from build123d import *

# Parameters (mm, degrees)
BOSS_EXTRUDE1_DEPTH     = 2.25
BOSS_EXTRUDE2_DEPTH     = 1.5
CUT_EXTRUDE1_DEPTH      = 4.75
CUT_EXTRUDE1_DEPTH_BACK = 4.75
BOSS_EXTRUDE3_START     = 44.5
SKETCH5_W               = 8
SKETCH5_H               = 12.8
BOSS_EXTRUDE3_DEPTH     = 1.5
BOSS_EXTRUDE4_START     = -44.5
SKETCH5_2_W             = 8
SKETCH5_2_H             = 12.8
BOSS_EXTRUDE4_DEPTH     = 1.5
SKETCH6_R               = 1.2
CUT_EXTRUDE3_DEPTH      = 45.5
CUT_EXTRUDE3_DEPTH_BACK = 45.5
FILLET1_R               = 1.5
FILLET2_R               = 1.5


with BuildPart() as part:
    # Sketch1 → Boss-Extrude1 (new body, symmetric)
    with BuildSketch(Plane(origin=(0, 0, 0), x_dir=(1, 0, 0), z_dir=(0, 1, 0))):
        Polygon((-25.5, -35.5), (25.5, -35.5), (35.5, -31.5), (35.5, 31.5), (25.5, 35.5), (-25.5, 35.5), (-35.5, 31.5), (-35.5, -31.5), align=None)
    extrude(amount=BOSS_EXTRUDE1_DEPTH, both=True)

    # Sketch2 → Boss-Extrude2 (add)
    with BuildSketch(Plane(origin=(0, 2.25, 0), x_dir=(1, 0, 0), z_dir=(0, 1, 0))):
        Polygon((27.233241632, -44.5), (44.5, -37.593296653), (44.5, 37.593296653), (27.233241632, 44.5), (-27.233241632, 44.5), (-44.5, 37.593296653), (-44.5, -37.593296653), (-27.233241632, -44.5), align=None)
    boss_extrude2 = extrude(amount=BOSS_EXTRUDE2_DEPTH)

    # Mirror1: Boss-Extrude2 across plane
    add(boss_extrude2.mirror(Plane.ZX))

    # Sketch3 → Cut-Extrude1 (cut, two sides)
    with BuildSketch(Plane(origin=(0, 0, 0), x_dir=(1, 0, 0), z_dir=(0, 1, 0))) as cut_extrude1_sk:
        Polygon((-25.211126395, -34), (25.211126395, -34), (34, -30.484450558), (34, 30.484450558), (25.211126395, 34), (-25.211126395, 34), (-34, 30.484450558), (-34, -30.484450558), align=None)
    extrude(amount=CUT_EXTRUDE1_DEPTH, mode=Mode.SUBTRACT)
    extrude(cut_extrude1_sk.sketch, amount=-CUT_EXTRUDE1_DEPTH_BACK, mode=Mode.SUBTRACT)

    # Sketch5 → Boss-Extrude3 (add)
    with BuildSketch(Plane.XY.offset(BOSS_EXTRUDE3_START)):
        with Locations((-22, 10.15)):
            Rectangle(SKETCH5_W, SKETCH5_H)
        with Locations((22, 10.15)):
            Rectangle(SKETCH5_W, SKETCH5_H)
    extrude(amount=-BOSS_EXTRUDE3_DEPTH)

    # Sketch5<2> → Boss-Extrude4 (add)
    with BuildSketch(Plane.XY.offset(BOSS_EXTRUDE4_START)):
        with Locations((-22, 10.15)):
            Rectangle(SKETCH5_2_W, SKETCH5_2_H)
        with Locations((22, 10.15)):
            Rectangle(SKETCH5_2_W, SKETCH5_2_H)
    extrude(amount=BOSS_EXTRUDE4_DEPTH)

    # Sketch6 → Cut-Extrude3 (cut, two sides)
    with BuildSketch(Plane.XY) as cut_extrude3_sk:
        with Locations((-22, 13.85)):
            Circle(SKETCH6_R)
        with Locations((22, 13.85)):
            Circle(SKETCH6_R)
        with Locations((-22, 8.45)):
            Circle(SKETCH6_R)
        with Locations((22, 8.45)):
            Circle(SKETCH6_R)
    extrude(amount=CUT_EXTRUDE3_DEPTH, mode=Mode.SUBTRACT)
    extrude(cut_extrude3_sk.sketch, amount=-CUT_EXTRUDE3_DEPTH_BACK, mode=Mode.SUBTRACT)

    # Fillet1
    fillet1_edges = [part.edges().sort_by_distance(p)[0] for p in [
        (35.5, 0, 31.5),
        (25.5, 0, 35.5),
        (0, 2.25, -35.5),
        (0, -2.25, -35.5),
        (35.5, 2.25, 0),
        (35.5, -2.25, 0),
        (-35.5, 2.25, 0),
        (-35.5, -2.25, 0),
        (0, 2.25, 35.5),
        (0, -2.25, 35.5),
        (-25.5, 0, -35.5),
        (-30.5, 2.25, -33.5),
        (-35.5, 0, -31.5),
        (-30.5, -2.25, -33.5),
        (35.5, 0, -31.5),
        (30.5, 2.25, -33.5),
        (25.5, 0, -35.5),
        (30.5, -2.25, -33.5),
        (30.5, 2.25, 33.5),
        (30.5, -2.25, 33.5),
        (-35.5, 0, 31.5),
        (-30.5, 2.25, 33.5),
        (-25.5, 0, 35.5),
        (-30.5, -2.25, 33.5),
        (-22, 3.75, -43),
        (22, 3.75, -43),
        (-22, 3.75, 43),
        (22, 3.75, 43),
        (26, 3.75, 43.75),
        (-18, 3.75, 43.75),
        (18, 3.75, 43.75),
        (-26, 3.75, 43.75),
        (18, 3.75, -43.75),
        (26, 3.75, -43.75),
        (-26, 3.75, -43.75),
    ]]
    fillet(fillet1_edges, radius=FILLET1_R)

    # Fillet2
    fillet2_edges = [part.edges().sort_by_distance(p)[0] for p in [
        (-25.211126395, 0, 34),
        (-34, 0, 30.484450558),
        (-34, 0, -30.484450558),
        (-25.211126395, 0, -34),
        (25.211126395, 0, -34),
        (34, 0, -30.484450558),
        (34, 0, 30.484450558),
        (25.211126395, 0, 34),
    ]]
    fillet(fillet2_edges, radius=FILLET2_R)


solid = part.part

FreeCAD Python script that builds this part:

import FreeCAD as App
import Part
import Sketcher
from FreeCAD import Vector


def edges_at(feature, points):
    """Names of the edges that pass closest to the given points."""
    edges = feature.Shape.Edges
    near = lambda p: min(range(len(edges)), key=lambda i: edges[i].distToShape(Part.Vertex(*p))[0])
    return sorted({f"Edge{near(p) + 1}" for p in points})

doc = App.newDocument("Part")
body = doc.addObject("PartDesign::Body", "Body")

sketch1 = body.newObject("Sketcher::SketchObject", "Sketch")
sketch1.AttachmentSupport = (doc.getObject("XZ_Plane"), [""])
sketch1.MapMode = "FlatFace"
sketch1.addGeometry(Part.LineSegment(Vector(-26, 36, 0), Vector(26, 36, 0)), False)
sketch1.addGeometry(Part.LineSegment(Vector(26, 36, 0), Vector(36, 32, 0)), False)
sketch1.addGeometry(Part.LineSegment(Vector(36, 32, 0), Vector(36, -32, 0)), False)
sketch1.addGeometry(Part.LineSegment(Vector(36, -32, 0), Vector(26, -36, 0)), False)
sketch1.addGeometry(Part.LineSegment(Vector(26, -36, 0), Vector(-26, -36, 0)), False)
sketch1.addGeometry(Part.LineSegment(Vector(-26, -36, 0), Vector(-36, -32, 0)), False)
sketch1.addGeometry(Part.LineSegment(Vector(-36, -32, 0), Vector(-36, 32, 0)), False)
sketch1.addGeometry(Part.LineSegment(Vector(-36, 32, 0), Vector(-26, 36, 0)), False)
sketch1.addConstraint(Sketcher.Constraint("Coincident", 0, 2, 1, 1))
sketch1.addConstraint(Sketcher.Constraint("Coincident", 1, 2, 2, 1))
sketch1.addConstraint(Sketcher.Constraint("Coincident", 2, 2, 3, 1))
sketch1.addConstraint(Sketcher.Constraint("Coincident", 3, 2, 4, 1))
sketch1.addConstraint(Sketcher.Constraint("Coincident", 4, 2, 5, 1))
sketch1.addConstraint(Sketcher.Constraint("Coincident", 5, 2, 6, 1))
sketch1.addConstraint(Sketcher.Constraint("Coincident", 6, 2, 7, 1))
sketch1.addConstraint(Sketcher.Constraint("Coincident", 7, 2, 0, 1))
sketch1.addConstraint(Sketcher.Constraint("Horizontal", 0))
sketch1.addConstraint(Sketcher.Constraint("Vertical", 2))
sketch1.addConstraint(Sketcher.Constraint("Horizontal", 4))
sketch1.addConstraint(Sketcher.Constraint("Vertical", 6))
sketch1.addConstraint(Sketcher.Constraint("Symmetric", 0, 2, 4, 2, -1, 1))
sketch1.addConstraint(Sketcher.Constraint("Symmetric", 1, 2, 5, 2, -1, 1))
sketch1.addConstraint(Sketcher.Constraint("Parallel", 3, 7))
sketch1.addConstraint(Sketcher.Constraint("Horizontal", 2, 2, 5, 2))
sketch1.addConstraint(Sketcher.Constraint("Horizontal", 1, 2, 6, 2))
sketch1.addConstraint(Sketcher.Constraint("Vertical", 0, 2, 3, 2))
sketch1.addConstraint(Sketcher.Constraint("DistanceX", 0, 1, 0, 2, 51.0))
sketch1.addConstraint(Sketcher.Constraint("DistanceY", 2, 2, 2, 1, 63.0))
sketch1.addConstraint(Sketcher.Constraint("DistanceX", 0, 2, 1, 2, 10.0))
sketch1.addConstraint(Sketcher.Constraint("DistanceY", 1, 2, 0, 2, 4.0))
pad1 = body.newObject("PartDesign::Pad", "Pad")
pad1.Profile = sketch1
pad1.Length = 4.5
pad1.Midplane = True

sketch2 = body.newObject("Sketcher::SketchObject", "Sketch001")
sketch2.AttachmentSupport = (doc.getObject("XZ_Plane"), [""])
sketch2.MapMode = "FlatFace"
sketch2.AttachmentOffset = App.Placement(Vector(0, 0, -2.25), App.Rotation())
sketch2.addGeometry(Part.LineSegment(Vector(27, 44, 0), Vector(44, 38, 0)), False)
sketch2.addGeometry(Part.LineSegment(Vector(44, 38, 0), Vector(44, -38, 0)), False)
sketch2.addGeometry(Part.LineSegment(Vector(44, -38, 0), Vector(27, -44, 0)), False)
sketch2.addGeometry(Part.LineSegment(Vector(27, -44, 0), Vector(-27, -44, 0)), False)
sketch2.addGeometry(Part.LineSegment(Vector(-27, -44, 0), Vector(-44, -38, 0)), False)
sketch2.addGeometry(Part.LineSegment(Vector(-44, -38, 0), Vector(-44, 38, 0)), False)
sketch2.addGeometry(Part.LineSegment(Vector(-44, 38, 0), Vector(-27, 44, 0)), False)
sketch2.addGeometry(Part.LineSegment(Vector(-27, 44, 0), Vector(27, 44, 0)), False)
sketch2.addConstraint(Sketcher.Constraint("Coincident", 0, 2, 1, 1))
sketch2.addConstraint(Sketcher.Constraint("Coincident", 1, 2, 2, 1))
sketch2.addConstraint(Sketcher.Constraint("Coincident", 2, 2, 3, 1))
sketch2.addConstraint(Sketcher.Constraint("Coincident", 3, 2, 4, 1))
sketch2.addConstraint(Sketcher.Constraint("Coincident", 4, 2, 5, 1))
sketch2.addConstraint(Sketcher.Constraint("Coincident", 5, 2, 6, 1))
sketch2.addConstraint(Sketcher.Constraint("Coincident", 6, 2, 7, 1))
sketch2.addConstraint(Sketcher.Constraint("Coincident", 7, 2, 0, 1))
sketch2.addConstraint(Sketcher.Constraint("Vertical", 1))
sketch2.addConstraint(Sketcher.Constraint("Horizontal", 3))
sketch2.addConstraint(Sketcher.Constraint("Vertical", 5))
sketch2.addConstraint(Sketcher.Constraint("Horizontal", 7))
sketch2.addConstraint(Sketcher.Constraint("Symmetric", 0, 2, 4, 2, -1, 1))
sketch2.addConstraint(Sketcher.Constraint("Symmetric", 2, 2, 6, 2, -1, 1))
sketch2.addConstraint(Sketcher.Constraint("Parallel", 0, 4))
sketch2.addConstraint(Sketcher.Constraint("Parallel", 2, 6))
sketch2.addConstraint(Sketcher.Constraint("Horizontal", 1, 2, 4, 2))
sketch2.addConstraint(Sketcher.Constraint("Vertical", 3, 2, 6, 2))
sketch2.addConstraint(Sketcher.Constraint("DistanceX", 4, 2, 1, 2, 89.0))
sketch2.addConstraint(Sketcher.Constraint("DistanceY", 3, 2, 6, 2, 89.0))
sketch2.addConstraint(Sketcher.Constraint("DistanceX", 3, 2, 3, 1, 54.466483))
sketch2.addConstraint(Sketcher.Constraint("DistanceY", 1, 2, 1, 1, 75.186593))
pad2 = body.newObject("PartDesign::Pad", "Pad001")
pad2.Profile = sketch2
pad2.Length = 1.5
pad2.Reversed = True
doc.recompute()

mirrored = body.newObject("PartDesign::Mirrored", "Mirrored")
mirrored.Originals = [pad2]
mirrored.MirrorPlane = (doc.getObject("XZ_Plane"), [""])
body.Tip = mirrored

sketch3 = body.newObject("Sketcher::SketchObject", "Sketch002")
sketch3.AttachmentSupport = (doc.getObject("XZ_Plane"), [""])
sketch3.MapMode = "FlatFace"
sketch3.addGeometry(Part.LineSegment(Vector(-25, 34, 0), Vector(25, 34, 0)), False)
sketch3.addGeometry(Part.LineSegment(Vector(25, 34, 0), Vector(34, 30, 0)), False)
sketch3.addGeometry(Part.LineSegment(Vector(34, 30, 0), Vector(34, -30, 0)), False)
sketch3.addGeometry(Part.LineSegment(Vector(34, -30, 0), Vector(25, -34, 0)), False)
sketch3.addGeometry(Part.LineSegment(Vector(25, -34, 0), Vector(-25, -34, 0)), False)
sketch3.addGeometry(Part.LineSegment(Vector(-25, -34, 0), Vector(-34, -30, 0)), False)
sketch3.addGeometry(Part.LineSegment(Vector(-34, -30, 0), Vector(-34, 30, 0)), False)
sketch3.addGeometry(Part.LineSegment(Vector(-34, 30, 0), Vector(-25, 34, 0)), False)
sketch3.addConstraint(Sketcher.Constraint("Coincident", 0, 2, 1, 1))
sketch3.addConstraint(Sketcher.Constraint("Coincident", 1, 2, 2, 1))
sketch3.addConstraint(Sketcher.Constraint("Coincident", 2, 2, 3, 1))
sketch3.addConstraint(Sketcher.Constraint("Coincident", 3, 2, 4, 1))
sketch3.addConstraint(Sketcher.Constraint("Coincident", 4, 2, 5, 1))
sketch3.addConstraint(Sketcher.Constraint("Coincident", 5, 2, 6, 1))
sketch3.addConstraint(Sketcher.Constraint("Coincident", 6, 2, 7, 1))
sketch3.addConstraint(Sketcher.Constraint("Coincident", 7, 2, 0, 1))
sketch3.addConstraint(Sketcher.Constraint("Horizontal", 0))
sketch3.addConstraint(Sketcher.Constraint("Vertical", 2))
sketch3.addConstraint(Sketcher.Constraint("Horizontal", 4))
sketch3.addConstraint(Sketcher.Constraint("Vertical", 6))
sketch3.addConstraint(Sketcher.Constraint("Symmetric", 0, 2, 4, 2, -1, 1))
sketch3.addConstraint(Sketcher.Constraint("Symmetric", 1, 2, 5, 2, -1, 1))
sketch3.addConstraint(Sketcher.Constraint("Parallel", 3, 7))
sketch3.addConstraint(Sketcher.Constraint("Horizontal", 2, 2, 5, 2))
sketch3.addConstraint(Sketcher.Constraint("Horizontal", 1, 2, 6, 2))
sketch3.addConstraint(Sketcher.Constraint("Vertical", 0, 2, 3, 2))
sketch3.addConstraint(Sketcher.Constraint("DistanceY", -1, 1, 0, 2, 34.0))
sketch3.addConstraint(Sketcher.Constraint("DistanceX", -1, 1, 1, 2, 34.0))
sketch3.addConstraint(Sketcher.Constraint("DistanceY", 2, 2, 2, 1, 60.968901))
sketch3.addConstraint(Sketcher.Constraint("DistanceX", 0, 1, 0, 2, 50.422253))
pocket1 = body.newObject("PartDesign::Pocket", "Pocket")
pocket1.Profile = sketch3
pocket1.Type = "ThroughAll"
pocket1.Midplane = True

sketch4 = body.newObject("Sketcher::SketchObject", "Sketch003")
sketch4.AttachmentSupport = (doc.getObject("XY_Plane"), [""])
sketch4.MapMode = "FlatFace"
sketch4.AttachmentOffset = App.Placement(Vector(0, 0, 44.5), App.Rotation())
sketch4.addGeometry(Part.LineSegment(Vector(-26, 17, 0), Vector(-26, 4, 0)), False)
sketch4.addGeometry(Part.LineSegment(Vector(-26, 4, 0), Vector(-18, 4, 0)), False)
sketch4.addGeometry(Part.LineSegment(Vector(-18, 4, 0), Vector(-18, 17, 0)), False)
sketch4.addGeometry(Part.LineSegment(Vector(-18, 17, 0), Vector(-26, 17, 0)), False)
sketch4.addGeometry(Part.LineSegment(Vector(18, 17, 0), Vector(18, 4, 0)), False)
sketch4.addGeometry(Part.LineSegment(Vector(18, 4, 0), Vector(26, 4, 0)), False)
sketch4.addGeometry(Part.LineSegment(Vector(26, 4, 0), Vector(26, 17, 0)), False)
sketch4.addGeometry(Part.LineSegment(Vector(26, 17, 0), Vector(18, 17, 0)), False)
sketch4.addConstraint(Sketcher.Constraint("Coincident", 0, 2, 1, 1))
sketch4.addConstraint(Sketcher.Constraint("Coincident", 1, 2, 2, 1))
sketch4.addConstraint(Sketcher.Constraint("Coincident", 2, 2, 3, 1))
sketch4.addConstraint(Sketcher.Constraint("Coincident", 3, 2, 0, 1))
sketch4.addConstraint(Sketcher.Constraint("Coincident", 4, 2, 5, 1))
sketch4.addConstraint(Sketcher.Constraint("Coincident", 5, 2, 6, 1))
sketch4.addConstraint(Sketcher.Constraint("Coincident", 6, 2, 7, 1))
sketch4.addConstraint(Sketcher.Constraint("Coincident", 7, 2, 4, 1))
sketch4.addConstraint(Sketcher.Constraint("Vertical", 0))
sketch4.addConstraint(Sketcher.Constraint("Horizontal", 1))
sketch4.addConstraint(Sketcher.Constraint("Vertical", 2))
sketch4.addConstraint(Sketcher.Constraint("Horizontal", 3))
sketch4.addConstraint(Sketcher.Constraint("Vertical", 4))
sketch4.addConstraint(Sketcher.Constraint("Horizontal", 5))
sketch4.addConstraint(Sketcher.Constraint("Vertical", 6))
sketch4.addConstraint(Sketcher.Constraint("Horizontal", 7))
sketch4.addConstraint(Sketcher.Constraint("Symmetric", 1, 2, 4, 2, -2))
sketch4.addConstraint(Sketcher.Constraint("Symmetric", 3, 2, 6, 2, -2))
sketch4.addConstraint(Sketcher.Constraint("DistanceX", 1, 1, 1, 2, 8.0))
sketch4.addConstraint(Sketcher.Constraint("DistanceY", 0, 2, 0, 1, 12.8))
sketch4.addConstraint(Sketcher.Constraint("DistanceX", 0, 2, -1, 1, 26.0))
sketch4.addConstraint(Sketcher.Constraint("DistanceY", -1, 1, 0, 2, 3.75))
pad3 = body.newObject("PartDesign::Pad", "Pad002")
pad3.Profile = sketch4
pad3.Length = 1.5
pad3.Reversed = True

sketch5 = body.newObject("Sketcher::SketchObject", "Sketch004")
sketch5.AttachmentSupport = (doc.getObject("XY_Plane"), [""])
sketch5.MapMode = "FlatFace"
sketch5.AttachmentOffset = App.Placement(Vector(0, 0, -44.5), App.Rotation())
sketch5.addGeometry(Part.LineSegment(Vector(-26, 17, 0), Vector(-26, 4, 0)), False)
sketch5.addGeometry(Part.LineSegment(Vector(-26, 4, 0), Vector(-18, 4, 0)), False)
sketch5.addGeometry(Part.LineSegment(Vector(-18, 4, 0), Vector(-18, 17, 0)), False)
sketch5.addGeometry(Part.LineSegment(Vector(-18, 17, 0), Vector(-26, 17, 0)), False)
sketch5.addGeometry(Part.LineSegment(Vector(18, 17, 0), Vector(18, 4, 0)), False)
sketch5.addGeometry(Part.LineSegment(Vector(18, 4, 0), Vector(26, 4, 0)), False)
sketch5.addGeometry(Part.LineSegment(Vector(26, 4, 0), Vector(26, 17, 0)), False)
sketch5.addGeometry(Part.LineSegment(Vector(26, 17, 0), Vector(18, 17, 0)), False)
sketch5.addConstraint(Sketcher.Constraint("Coincident", 0, 2, 1, 1))
sketch5.addConstraint(Sketcher.Constraint("Coincident", 1, 2, 2, 1))
sketch5.addConstraint(Sketcher.Constraint("Coincident", 2, 2, 3, 1))
sketch5.addConstraint(Sketcher.Constraint("Coincident", 3, 2, 0, 1))
sketch5.addConstraint(Sketcher.Constraint("Coincident", 4, 2, 5, 1))
sketch5.addConstraint(Sketcher.Constraint("Coincident", 5, 2, 6, 1))
sketch5.addConstraint(Sketcher.Constraint("Coincident", 6, 2, 7, 1))
sketch5.addConstraint(Sketcher.Constraint("Coincident", 7, 2, 4, 1))
sketch5.addConstraint(Sketcher.Constraint("Vertical", 0))
sketch5.addConstraint(Sketcher.Constraint("Horizontal", 1))
sketch5.addConstraint(Sketcher.Constraint("Vertical", 2))
sketch5.addConstraint(Sketcher.Constraint("Horizontal", 3))
sketch5.addConstraint(Sketcher.Constraint("Vertical", 4))
sketch5.addConstraint(Sketcher.Constraint("Horizontal", 5))
sketch5.addConstraint(Sketcher.Constraint("Vertical", 6))
sketch5.addConstraint(Sketcher.Constraint("Horizontal", 7))
sketch5.addConstraint(Sketcher.Constraint("Symmetric", 1, 2, 4, 2, -2))
sketch5.addConstraint(Sketcher.Constraint("Symmetric", 3, 2, 6, 2, -2))
sketch5.addConstraint(Sketcher.Constraint("DistanceX", 1, 1, 1, 2, 8.0))
sketch5.addConstraint(Sketcher.Constraint("DistanceY", 0, 2, 0, 1, 12.8))
sketch5.addConstraint(Sketcher.Constraint("DistanceX", 0, 2, -1, 1, 26.0))
sketch5.addConstraint(Sketcher.Constraint("DistanceY", -1, 1, 0, 2, 3.75))
pad4 = body.newObject("PartDesign::Pad", "Pad003")
pad4.Profile = sketch5
pad4.Length = 1.5

sketch6 = body.newObject("Sketcher::SketchObject", "Sketch005")
sketch6.AttachmentSupport = (doc.getObject("XY_Plane"), [""])
sketch6.MapMode = "FlatFace"
sketch6.addGeometry(Part.Circle(Vector(-22, 13.8, 0), Vector(0, 0, 1), 1.2), False)
sketch6.addGeometry(Part.Circle(Vector(22, 13.8, 0), Vector(0, 0, 1), 1.2), False)
sketch6.addGeometry(Part.Circle(Vector(-22, 8.4, 0), Vector(0, 0, 1), 1.2), False)
sketch6.addGeometry(Part.Circle(Vector(22, 8.4, 0), Vector(0, 0, 1), 1.2), False)
sketch6.addConstraint(Sketcher.Constraint("Equal", 0, 1))
sketch6.addConstraint(Sketcher.Constraint("Equal", 1, 2))
sketch6.addConstraint(Sketcher.Constraint("Equal", 2, 3))
sketch6.addConstraint(Sketcher.Constraint("Symmetric", 0, 3, 1, 3, -2))
sketch6.addConstraint(Sketcher.Constraint("Symmetric", 2, 3, 3, 3, -2))
sketch6.addConstraint(Sketcher.Constraint("Vertical", 0, 3, 2, 3))
sketch6.addConstraint(Sketcher.Constraint("Diameter", 0, 2.4))
sketch6.addConstraint(Sketcher.Constraint("DistanceX", 0, 3, -1, 1, 22.0))
sketch6.addConstraint(Sketcher.Constraint("DistanceY", 2, 3, 0, 3, 5.4))
sketch6.addConstraint(Sketcher.Constraint("DistanceY", -1, 1, 0, 3, 13.85))
pocket2 = body.newObject("PartDesign::Pocket", "Pocket001")
pocket2.Profile = sketch6
pocket2.Type = "ThroughAll"
pocket2.Midplane = True
doc.recompute()

fillet = body.newObject("PartDesign::Fillet", "Fillet")
fillet.Base = (pocket2, edges_at(pocket2, [
    (35.5, 0, 31.5),
    (25.5, 0, 35.5),
    (0, 2.25, -35.5),
    (0, -2.25, -35.5),
    (35.5, 2.25, 0),
    (35.5, -2.25, 0),
    (-35.5, 2.25, 0),
    (-35.5, -2.25, 0),
    (0, 2.25, 35.5),
    (0, -2.25, 35.5),
    (-25.5, 0, -35.5),
    (-30.5, 2.25, -33.5),
    (-35.5, 0, -31.5),
    (-30.5, -2.25, -33.5),
    (35.5, 0, -31.5),
    (30.5, 2.25, -33.5),
    (25.5, 0, -35.5),
    (30.5, -2.25, -33.5),
    (30.5, 2.25, 33.5),
    (30.5, -2.25, 33.5),
    (-35.5, 0, 31.5),
    (-30.5, 2.25, 33.5),
    (-25.5, 0, 35.5),
    (-30.5, -2.25, 33.5),
    (-22, 3.75, -43),
    (22, 3.75, -43),
    (-22, 3.75, 43),
    (22, 3.75, 43),
    (26, 3.75, 43.75),
    (-18, 3.75, 43.75),
    (18, 3.75, 43.75),
    (-26, 3.75, 43.75),
    (18, 3.75, -43.75),
    (26, 3.75, -43.75),
    (-26, 3.75, -43.75),
]))
fillet.Radius = 1.5
doc.recompute()

fillet2 = body.newObject("PartDesign::Fillet", "Fillet001")
fillet2.Base = (fillet, edges_at(fillet, [
    (-25.211, 0, 34),
    (-34, 0, 30.484),
    (-34, 0, -30.484),
    (-25.211, 0, -34),
    (25.211, 0, -34),
    (34, 0, -30.484),
    (34, 0, 30.484),
    (25.211, 0, 34),
]))
fillet2.Radius = 1.5

doc.recompute()
